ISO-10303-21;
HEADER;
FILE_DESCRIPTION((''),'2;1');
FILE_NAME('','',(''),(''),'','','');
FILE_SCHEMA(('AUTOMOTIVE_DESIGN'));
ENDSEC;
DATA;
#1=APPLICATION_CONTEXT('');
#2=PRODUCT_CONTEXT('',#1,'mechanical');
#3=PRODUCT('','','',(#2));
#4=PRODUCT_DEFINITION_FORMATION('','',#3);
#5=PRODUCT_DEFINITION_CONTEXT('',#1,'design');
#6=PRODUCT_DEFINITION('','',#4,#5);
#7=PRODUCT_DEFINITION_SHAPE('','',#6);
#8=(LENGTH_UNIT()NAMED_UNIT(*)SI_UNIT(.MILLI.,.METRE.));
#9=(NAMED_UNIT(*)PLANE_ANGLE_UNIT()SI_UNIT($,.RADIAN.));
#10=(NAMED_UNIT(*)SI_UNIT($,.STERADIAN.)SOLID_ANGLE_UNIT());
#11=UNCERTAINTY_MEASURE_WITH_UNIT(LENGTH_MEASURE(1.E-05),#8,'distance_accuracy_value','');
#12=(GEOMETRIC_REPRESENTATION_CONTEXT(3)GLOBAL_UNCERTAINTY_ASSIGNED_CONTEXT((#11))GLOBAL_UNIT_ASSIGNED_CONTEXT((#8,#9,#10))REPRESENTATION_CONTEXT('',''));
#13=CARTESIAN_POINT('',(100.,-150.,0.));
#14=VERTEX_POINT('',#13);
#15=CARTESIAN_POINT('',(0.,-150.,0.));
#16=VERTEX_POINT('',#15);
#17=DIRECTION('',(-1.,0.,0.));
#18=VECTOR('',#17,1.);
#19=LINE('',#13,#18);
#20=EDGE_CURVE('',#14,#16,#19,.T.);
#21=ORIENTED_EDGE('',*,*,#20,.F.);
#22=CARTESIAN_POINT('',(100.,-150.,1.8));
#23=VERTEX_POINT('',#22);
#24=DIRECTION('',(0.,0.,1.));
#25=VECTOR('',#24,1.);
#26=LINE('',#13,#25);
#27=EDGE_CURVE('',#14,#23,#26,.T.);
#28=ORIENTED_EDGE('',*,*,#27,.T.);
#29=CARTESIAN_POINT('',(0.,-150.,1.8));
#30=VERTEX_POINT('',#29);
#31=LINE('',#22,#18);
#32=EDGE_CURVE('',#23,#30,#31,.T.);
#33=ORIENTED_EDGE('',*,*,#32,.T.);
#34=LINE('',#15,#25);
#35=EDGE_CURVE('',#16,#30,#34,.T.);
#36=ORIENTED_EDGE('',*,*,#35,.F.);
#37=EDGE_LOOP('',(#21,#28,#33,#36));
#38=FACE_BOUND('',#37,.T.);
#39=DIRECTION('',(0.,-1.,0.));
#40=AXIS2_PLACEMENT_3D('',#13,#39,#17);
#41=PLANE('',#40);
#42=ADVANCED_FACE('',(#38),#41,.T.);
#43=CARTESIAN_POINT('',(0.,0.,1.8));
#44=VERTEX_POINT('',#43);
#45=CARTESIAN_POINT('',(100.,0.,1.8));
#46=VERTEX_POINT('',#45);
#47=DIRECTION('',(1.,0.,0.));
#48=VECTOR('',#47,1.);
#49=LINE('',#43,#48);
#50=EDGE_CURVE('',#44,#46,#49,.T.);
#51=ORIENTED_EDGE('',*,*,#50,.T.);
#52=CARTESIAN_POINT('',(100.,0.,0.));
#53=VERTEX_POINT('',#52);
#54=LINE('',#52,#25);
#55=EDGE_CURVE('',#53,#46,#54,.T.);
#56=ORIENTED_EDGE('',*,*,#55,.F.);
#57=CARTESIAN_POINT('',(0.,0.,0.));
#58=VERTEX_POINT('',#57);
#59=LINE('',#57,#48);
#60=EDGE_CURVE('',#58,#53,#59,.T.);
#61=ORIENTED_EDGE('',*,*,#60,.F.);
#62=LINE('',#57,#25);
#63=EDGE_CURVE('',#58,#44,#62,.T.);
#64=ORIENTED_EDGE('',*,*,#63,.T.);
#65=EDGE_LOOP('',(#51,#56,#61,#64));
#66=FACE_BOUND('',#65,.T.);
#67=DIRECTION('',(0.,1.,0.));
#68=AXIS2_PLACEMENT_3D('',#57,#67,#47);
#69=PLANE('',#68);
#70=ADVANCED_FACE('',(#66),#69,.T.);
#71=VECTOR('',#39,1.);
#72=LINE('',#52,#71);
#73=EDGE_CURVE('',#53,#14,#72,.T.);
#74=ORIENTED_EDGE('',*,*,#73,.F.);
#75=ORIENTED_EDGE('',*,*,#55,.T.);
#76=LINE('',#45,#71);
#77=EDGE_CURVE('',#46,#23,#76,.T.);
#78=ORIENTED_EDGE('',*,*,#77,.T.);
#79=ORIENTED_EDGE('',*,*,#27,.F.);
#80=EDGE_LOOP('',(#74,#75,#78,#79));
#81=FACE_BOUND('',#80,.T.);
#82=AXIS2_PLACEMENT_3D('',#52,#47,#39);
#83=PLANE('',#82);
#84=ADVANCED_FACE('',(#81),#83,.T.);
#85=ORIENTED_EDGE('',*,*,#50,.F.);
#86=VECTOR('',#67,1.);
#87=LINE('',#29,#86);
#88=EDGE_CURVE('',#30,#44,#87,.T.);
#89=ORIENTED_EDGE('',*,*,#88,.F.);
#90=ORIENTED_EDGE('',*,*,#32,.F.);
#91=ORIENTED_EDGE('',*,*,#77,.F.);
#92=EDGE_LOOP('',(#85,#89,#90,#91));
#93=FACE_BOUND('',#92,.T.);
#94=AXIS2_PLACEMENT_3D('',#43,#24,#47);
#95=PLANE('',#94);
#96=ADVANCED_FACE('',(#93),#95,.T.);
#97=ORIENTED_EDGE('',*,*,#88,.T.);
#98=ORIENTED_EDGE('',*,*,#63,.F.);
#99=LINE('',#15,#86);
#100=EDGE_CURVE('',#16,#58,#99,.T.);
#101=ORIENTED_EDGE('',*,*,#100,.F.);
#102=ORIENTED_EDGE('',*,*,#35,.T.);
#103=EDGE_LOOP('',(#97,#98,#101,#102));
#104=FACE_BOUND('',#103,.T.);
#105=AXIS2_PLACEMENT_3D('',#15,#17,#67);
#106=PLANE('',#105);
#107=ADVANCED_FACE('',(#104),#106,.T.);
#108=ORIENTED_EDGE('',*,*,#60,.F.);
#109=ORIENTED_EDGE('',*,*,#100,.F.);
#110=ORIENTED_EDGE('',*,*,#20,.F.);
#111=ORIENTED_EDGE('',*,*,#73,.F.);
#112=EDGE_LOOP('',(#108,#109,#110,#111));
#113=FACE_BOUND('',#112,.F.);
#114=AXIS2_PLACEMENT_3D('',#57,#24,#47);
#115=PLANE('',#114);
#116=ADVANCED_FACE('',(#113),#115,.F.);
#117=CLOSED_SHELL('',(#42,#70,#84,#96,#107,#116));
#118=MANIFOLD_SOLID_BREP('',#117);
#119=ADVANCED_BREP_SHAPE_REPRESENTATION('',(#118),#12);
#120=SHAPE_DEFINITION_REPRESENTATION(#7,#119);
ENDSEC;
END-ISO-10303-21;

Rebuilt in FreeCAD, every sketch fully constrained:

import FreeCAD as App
import Part
import Sketcher
from FreeCAD import Vector


def add_polygon(sketch, points):
    """Adds a closed chain of lines whose ends are joined by coincident constraints."""
    first, n = sketch.GeometryCount, len(points)
    for a, b in zip(points, points[1:] + points[:1]):
        sketch.addGeometry(Part.LineSegment(App.Vector(*a, 0), App.Vector(*b, 0)), False)
    for i in range(n):
        sketch.addConstraint(Sketcher.Constraint("Coincident", first + i, 2, first + (i + 1) % n, 1))

doc = App.newDocument("Part")
params = doc.addObject("Spreadsheet::Sheet", "Params")
for row, (alias, value) in enumerate([
    ("sketch1_width", "100 mm"),
    ("sketch1_height", "150 mm"),
    ("pad1_length", "1.8 mm"),
], start=1):
    params.set(f"A{row}", alias)
    params.set(f"B{row}", "=" + value)
    params.setAlias(f"B{row}", alias)

body = doc.addObject("PartDesign::Body", "Body")

# Sketch on XY plane
sketch1 = body.newObject("Sketcher::SketchObject", "Sketch")
sketch1.AttachmentSupport = (doc.getObject("XY_Plane"), [""])
sketch1.MapMode = "FlatFace"
add_polygon(sketch1, [(100, 0), (0, 0), (0, -150), (100, -150)])  # lines 0-3
sketch1.addConstraint(Sketcher.Constraint("Horizontal", 0))
sketch1.addConstraint(Sketcher.Constraint("Vertical", 1))
sketch1.addConstraint(Sketcher.Constraint("Horizontal", 2))
sketch1.addConstraint(Sketcher.Constraint("Vertical", 3))
sketch1.addConstraint(Sketcher.Constraint("Coincident", 0, 2, -1, 1))
sketch1.addConstraint(Sketcher.Constraint("DistanceX", 0, 2, 0, 1, 100.0))
sketch1.addConstraint(Sketcher.Constraint("DistanceY", 1, 2, 1, 1, 150.0))
sketch1.setExpression("Constraints[9]", "Params.sketch1_width")
sketch1.setExpression("Constraints[10]", "Params.sketch1_height")
pad1 = body.newObject("PartDesign::Pad", "Pad")
pad1.Profile = sketch1
pad1.setExpression("Length", "Params.pad1_length")

doc.recompute()
